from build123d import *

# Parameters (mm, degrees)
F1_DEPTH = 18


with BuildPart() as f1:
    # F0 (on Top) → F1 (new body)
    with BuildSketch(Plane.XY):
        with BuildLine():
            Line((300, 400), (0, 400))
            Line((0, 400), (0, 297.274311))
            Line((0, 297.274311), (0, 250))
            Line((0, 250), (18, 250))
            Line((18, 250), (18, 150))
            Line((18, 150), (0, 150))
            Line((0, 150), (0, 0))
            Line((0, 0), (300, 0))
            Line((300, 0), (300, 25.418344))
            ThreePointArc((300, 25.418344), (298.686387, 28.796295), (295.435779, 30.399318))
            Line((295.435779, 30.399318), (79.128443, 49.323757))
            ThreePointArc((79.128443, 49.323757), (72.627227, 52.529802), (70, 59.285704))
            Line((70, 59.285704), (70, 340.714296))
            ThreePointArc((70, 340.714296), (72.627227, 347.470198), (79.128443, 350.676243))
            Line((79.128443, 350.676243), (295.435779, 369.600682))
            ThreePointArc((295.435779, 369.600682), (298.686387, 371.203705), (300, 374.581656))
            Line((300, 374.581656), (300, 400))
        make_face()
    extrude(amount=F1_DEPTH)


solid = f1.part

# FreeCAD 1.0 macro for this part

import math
import FreeCAD as App
import Part
import Sketcher
Q = App.Units.Quantity

doc = App.newDocument("Part")
body = doc.addObject("PartDesign::Body", "Body")

# Sketch on XY plane
sketch1 = body.newObject("Sketcher::SketchObject", "Sketch")
sketch1.AttachmentSupport = (doc.getObject("XY_Plane"), [""])
sketch1.MapMode = "FlatFace"
sketch1.addGeometry([
    Part.LineSegment(App.Vector(300, 400, 0), App.Vector(0, 400, 0)),  # 0
    Part.LineSegment(App.Vector(0, 400, 0), App.Vector(0, 250, 0)),  # 1
    Part.LineSegment(App.Vector(0, 250, 0), App.Vector(18, 250, 0)),  # 2
    Part.LineSegment(App.Vector(18, 250, 0), App.Vector(18, 150, 0)),  # 3
    Part.LineSegment(App.Vector(18, 150, 0), App.Vector(0, 150, 0)),  # 4
    Part.LineSegment(App.Vector(0, 150, 0), App.Vector(0, 0, 0)),  # 5
    Part.LineSegment(App.Vector(0, 0, 0), App.Vector(300, 0, 0)),  # 6
    Part.LineSegment(App.Vector(300, 0, 0), App.Vector(300, 25, 0)),  # 7
    Part.ArcOfCircle(Part.Circle(App.Vector(295, 25, 0), App.Vector(0, 0, 1), 5), math.radians(0), math.radians(85)),  # 8
    Part.LineSegment(App.Vector(295, 30, 0), App.Vector(79, 49, 0)),  # 9
    Part.ArcOfCircle(Part.Circle(App.Vector(80, 59, 0), App.Vector(0, 0, 1), 10), math.radians(-180), math.radians(-95)),  # 10
    Part.LineSegment(App.Vector(70, 59, 0), App.Vector(70, 341, 0)),  # 11
    Part.ArcOfCircle(Part.Circle(App.Vector(80, 341, 0), App.Vector(0, 0, 1), 10), math.radians(95), math.radians(180)),  # 12
    Part.LineSegment(App.Vector(79, 351, 0), App.Vector(295, 370, 0)),  # 13
    Part.ArcOfCircle(Part.Circle(App.Vector(295, 375, 0), App.Vector(0, 0, 1), 5), math.radians(-85), math.radians(0)),  # 14
    Part.LineSegment(App.Vector(300, 375, 0), App.Vector(300, 400, 0)),  # 15
], False)
sketch1.addConstraint([
    Sketcher.Constraint("Coincident", 0, 2, 1, 1),
    Sketcher.Constraint("Coincident", 1, 2, 2, 1),
    Sketcher.Constraint("Coincident", 2, 2, 3, 1),
    Sketcher.Constraint("Coincident", 3, 2, 4, 1),
    Sketcher.Constraint("Coincident", 4, 2, 5, 1),
    Sketcher.Constraint("Coincident", 5, 2, 6, 1),
    Sketcher.Constraint("Coincident", 6, 2, 7, 1),
    Sketcher.Constraint("Tangent", 7, 2, 8, 1),
    Sketcher.Constraint("Tangent", 8, 2, 9, 1),
    Sketcher.Constraint("Tangent", 9, 2, 10, 2),
    Sketcher.Constraint("Tangent", 10, 1, 11, 1),
    Sketcher.Constraint("Tangent", 11, 2, 12, 2),
    Sketcher.Constraint("Tangent", 12, 1, 13, 1),
    Sketcher.Constraint("Tangent", 13, 2, 14, 1),
    Sketcher.Constraint("Tangent", 14, 2, 15, 1),
    Sketcher.Constraint("Coincident", 15, 2, 0, 1),
    Sketcher.Constraint("Horizontal", 0),
    Sketcher.Constraint("Vertical", 1),
    Sketcher.Constraint("Horizontal", 2),
    Sketcher.Constraint("Vertical", 3),
    Sketcher.Constraint("Horizontal", 4),
    Sketcher.Constraint("Vertical", 5),
    Sketcher.Constraint("Horizontal", 6),
    Sketcher.Constraint("Vertical", 7),
    Sketcher.Constraint("Vertical", 11),
    Sketcher.Constraint("Vertical", 15),
    Sketcher.Constraint("Coincident", 5, 2, -1, 1),
    Sketcher.Constraint("Equal", 10, 12),
    Sketcher.Constraint("Equal", 8, 14),
    Sketcher.Constraint("PointOnObject", 0, 2, -2),
    Sketcher.Constraint("Vertical", 8, 3, 14, 3),
    Sketcher.Constraint("Vertical", 9, 2, 12, 1),
    Sketcher.Constraint("Equal", 1, 5),
    Sketcher.Constraint("Equal", 7, 15),
    Sketcher.Constraint("Radius", 8, 5.0),
    Sketcher.Constraint("Radius", 10, 10.000001),
    Sketcher.Constraint("DistanceX", 0, 2, 0, 1, 300.0),
    Sketcher.Constraint("DistanceX", 2, 1, 2, 2, 18.0),
    Sketcher.Constraint("DistanceY", 1, 2, 1, 1, 150.0),
    Sketcher.Constraint("DistanceY", 3, 2, 3, 1, 100.0),
    Sketcher.Constraint("Angle", 9, Q("175 deg")),
    Sketcher.Constraint("DistanceX", -1, 1, 10, 3, 80.000001),
    Sketcher.Constraint("DistanceY", 11, 1, 11, 2, 281.428592),
])
pad1 = body.newObject("PartDesign::Pad", "Pad")
pad1.Profile = sketch1
pad1.Length = 18

doc.recompute()
